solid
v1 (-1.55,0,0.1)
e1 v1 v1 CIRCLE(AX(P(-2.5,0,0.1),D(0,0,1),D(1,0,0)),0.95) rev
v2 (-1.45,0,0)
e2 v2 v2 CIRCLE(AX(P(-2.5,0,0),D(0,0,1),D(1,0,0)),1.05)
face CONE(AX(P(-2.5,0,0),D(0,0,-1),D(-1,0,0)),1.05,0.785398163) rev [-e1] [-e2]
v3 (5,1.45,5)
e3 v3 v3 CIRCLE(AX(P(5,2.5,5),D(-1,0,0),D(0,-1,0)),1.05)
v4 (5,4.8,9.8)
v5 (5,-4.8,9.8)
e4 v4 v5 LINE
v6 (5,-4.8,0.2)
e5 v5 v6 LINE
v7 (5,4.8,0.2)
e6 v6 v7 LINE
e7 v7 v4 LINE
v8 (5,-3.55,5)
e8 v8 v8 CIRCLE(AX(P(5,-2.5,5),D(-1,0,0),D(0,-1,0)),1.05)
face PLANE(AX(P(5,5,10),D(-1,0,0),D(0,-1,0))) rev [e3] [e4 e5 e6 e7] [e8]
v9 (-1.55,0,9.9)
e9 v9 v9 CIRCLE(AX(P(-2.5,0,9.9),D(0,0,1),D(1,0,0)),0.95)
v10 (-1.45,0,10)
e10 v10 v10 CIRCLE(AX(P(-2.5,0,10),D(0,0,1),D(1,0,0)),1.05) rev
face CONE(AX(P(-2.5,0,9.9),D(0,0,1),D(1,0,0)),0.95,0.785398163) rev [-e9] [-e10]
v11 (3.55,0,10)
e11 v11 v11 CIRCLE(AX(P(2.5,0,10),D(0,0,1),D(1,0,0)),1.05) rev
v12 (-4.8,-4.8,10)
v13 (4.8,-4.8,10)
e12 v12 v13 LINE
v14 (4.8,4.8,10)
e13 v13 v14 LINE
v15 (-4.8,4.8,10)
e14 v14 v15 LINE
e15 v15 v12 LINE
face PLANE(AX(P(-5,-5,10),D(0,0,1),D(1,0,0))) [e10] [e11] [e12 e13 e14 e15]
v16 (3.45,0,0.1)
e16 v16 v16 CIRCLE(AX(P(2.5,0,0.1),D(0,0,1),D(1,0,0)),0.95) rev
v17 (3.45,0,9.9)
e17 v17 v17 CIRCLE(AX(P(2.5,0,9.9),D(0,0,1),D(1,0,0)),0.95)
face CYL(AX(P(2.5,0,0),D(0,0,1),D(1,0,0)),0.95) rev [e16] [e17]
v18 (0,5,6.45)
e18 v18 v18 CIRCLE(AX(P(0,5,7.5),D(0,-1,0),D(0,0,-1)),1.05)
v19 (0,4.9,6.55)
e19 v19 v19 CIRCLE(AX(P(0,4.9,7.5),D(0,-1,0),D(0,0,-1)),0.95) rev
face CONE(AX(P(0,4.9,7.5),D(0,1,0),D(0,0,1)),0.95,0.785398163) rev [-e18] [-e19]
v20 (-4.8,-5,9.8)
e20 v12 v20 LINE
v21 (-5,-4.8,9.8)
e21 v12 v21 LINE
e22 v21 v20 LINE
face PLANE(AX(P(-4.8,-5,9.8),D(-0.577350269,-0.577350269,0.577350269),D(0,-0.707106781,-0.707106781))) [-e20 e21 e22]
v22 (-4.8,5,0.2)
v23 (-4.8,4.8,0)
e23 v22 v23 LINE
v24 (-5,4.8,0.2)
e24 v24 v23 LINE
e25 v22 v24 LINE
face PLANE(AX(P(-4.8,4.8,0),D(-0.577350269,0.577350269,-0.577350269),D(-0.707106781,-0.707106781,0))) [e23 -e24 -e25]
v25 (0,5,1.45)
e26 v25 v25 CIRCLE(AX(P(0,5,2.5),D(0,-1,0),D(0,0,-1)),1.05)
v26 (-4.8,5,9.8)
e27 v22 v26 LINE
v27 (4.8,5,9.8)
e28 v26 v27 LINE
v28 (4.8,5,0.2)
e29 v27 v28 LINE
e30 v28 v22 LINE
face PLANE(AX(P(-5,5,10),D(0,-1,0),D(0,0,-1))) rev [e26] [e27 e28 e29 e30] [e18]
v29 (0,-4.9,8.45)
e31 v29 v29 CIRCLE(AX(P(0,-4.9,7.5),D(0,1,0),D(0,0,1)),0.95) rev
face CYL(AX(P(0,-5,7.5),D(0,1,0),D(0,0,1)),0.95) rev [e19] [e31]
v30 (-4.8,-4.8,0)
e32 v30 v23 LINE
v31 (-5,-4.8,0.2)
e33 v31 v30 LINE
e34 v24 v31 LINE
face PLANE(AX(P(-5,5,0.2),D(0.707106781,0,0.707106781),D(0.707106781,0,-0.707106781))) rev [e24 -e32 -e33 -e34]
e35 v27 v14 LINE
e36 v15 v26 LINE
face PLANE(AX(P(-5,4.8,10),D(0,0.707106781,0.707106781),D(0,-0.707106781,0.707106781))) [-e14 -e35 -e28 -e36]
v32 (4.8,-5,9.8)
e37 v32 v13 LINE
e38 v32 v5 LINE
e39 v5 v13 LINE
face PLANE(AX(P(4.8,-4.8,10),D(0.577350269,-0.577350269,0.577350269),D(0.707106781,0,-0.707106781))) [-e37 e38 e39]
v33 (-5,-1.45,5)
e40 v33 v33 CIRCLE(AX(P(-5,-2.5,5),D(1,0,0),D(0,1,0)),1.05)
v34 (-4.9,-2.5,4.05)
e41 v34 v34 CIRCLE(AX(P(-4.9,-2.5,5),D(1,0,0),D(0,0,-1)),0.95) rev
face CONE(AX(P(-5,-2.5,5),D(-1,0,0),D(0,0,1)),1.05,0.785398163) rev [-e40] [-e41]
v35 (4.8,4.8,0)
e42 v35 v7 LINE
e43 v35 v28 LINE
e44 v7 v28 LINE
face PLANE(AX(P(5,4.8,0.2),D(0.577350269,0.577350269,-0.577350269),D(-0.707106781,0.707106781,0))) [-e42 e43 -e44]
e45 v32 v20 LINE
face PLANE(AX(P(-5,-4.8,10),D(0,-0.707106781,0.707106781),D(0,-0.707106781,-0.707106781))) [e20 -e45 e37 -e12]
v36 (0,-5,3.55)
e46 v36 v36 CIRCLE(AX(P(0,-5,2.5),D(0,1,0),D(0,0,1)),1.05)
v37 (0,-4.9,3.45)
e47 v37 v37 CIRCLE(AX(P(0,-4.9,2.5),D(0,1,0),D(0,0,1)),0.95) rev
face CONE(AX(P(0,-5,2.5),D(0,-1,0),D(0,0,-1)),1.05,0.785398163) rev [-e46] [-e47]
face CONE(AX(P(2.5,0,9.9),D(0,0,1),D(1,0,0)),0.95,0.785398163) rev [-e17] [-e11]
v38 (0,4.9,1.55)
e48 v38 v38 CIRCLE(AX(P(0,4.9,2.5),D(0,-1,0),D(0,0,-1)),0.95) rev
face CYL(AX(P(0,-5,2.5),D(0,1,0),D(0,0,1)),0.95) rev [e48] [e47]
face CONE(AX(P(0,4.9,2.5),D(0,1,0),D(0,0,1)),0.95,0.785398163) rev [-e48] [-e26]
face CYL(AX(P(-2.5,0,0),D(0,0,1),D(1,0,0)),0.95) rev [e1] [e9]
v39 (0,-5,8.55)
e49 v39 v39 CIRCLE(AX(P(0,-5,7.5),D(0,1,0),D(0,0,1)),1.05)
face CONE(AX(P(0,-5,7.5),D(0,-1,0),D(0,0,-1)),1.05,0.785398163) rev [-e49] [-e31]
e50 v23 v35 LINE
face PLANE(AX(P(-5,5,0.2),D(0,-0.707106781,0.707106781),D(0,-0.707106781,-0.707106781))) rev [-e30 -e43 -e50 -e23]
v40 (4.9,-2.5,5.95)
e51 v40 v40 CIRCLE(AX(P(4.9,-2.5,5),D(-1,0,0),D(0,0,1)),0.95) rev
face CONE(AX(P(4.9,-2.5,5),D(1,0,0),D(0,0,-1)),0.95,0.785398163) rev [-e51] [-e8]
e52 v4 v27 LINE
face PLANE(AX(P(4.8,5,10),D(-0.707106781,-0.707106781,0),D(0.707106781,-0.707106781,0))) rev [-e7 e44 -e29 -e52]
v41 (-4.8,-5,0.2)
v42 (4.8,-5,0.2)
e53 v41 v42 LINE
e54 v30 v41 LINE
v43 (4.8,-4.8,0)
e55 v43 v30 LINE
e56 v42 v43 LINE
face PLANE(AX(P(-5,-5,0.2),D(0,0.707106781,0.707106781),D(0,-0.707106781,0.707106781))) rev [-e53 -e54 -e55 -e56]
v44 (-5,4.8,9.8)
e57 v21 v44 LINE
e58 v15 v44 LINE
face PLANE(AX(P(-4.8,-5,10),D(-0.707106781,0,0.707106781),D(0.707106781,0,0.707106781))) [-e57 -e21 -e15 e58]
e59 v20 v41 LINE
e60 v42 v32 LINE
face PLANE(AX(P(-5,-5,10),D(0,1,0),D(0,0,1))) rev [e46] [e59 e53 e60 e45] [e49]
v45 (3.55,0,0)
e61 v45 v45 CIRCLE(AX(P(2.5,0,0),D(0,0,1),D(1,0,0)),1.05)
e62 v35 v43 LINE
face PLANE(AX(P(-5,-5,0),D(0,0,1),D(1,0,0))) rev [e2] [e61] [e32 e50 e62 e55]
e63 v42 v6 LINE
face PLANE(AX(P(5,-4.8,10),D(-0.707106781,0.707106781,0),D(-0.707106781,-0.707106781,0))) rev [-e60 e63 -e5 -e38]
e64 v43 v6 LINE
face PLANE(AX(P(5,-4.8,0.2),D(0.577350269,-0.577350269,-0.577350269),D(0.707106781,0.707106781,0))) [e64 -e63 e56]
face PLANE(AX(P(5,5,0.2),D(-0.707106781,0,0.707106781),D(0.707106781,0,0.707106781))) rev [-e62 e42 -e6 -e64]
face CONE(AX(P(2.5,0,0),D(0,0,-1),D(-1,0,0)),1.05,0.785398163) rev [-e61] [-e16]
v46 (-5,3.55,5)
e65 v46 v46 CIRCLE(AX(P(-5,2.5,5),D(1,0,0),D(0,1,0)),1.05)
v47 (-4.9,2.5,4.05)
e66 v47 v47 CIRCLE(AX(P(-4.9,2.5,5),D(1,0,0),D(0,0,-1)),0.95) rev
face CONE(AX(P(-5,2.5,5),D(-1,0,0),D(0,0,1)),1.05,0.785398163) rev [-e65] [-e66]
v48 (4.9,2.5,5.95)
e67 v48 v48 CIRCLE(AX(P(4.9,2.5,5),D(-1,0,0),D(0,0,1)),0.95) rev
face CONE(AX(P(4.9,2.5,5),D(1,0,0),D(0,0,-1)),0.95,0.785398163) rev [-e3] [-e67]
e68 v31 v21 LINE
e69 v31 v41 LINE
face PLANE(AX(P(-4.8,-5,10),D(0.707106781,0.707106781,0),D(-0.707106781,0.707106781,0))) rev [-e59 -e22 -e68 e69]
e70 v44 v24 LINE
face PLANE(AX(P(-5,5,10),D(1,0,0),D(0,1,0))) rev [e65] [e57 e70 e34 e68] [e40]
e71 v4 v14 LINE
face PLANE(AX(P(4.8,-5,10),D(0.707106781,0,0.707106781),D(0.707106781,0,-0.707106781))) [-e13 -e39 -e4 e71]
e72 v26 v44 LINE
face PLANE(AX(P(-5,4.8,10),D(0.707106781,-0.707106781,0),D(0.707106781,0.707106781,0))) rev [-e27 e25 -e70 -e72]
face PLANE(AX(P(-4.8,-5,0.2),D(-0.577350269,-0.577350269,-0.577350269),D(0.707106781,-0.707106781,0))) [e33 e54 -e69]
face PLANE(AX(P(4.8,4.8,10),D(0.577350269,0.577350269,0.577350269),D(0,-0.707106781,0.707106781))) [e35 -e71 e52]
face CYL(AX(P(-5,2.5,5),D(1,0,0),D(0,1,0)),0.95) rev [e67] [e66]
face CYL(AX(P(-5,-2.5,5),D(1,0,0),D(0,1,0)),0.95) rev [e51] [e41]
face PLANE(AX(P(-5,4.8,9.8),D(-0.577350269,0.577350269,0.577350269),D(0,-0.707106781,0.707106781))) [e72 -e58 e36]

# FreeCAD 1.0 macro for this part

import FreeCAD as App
import Part
import Sketcher
from FreeCAD import Vector


def edges_at(feature, points):
    """Names of the edges that pass closest to the given points."""
    edges = feature.Shape.Edges
    near = lambda p: min(range(len(edges)), key=lambda i: edges[i].distToShape(Part.Vertex(*p))[0])
    return sorted({f"Edge{near(p) + 1}" for p in points})


def add_polygon(sketch, points):
    """Adds a closed chain of lines whose ends are joined by coincident constraints."""
    first, n = sketch.GeometryCount, len(points)
    for a, b in zip(points, points[1:] + points[:1]):
        sketch.addGeometry(Part.LineSegment(App.Vector(*a, 0), App.Vector(*b, 0)), False)
    for i in range(n):
        sketch.addConstraint(Sketcher.Constraint("Coincident", first + i, 2, first + (i + 1) % n, 1))

doc = App.newDocument("Part")
body = doc.addObject("PartDesign::Body", "Body")

sketch1 = doc.addObject("Sketcher::SketchObject", "Sketch")
body.addObject(sketch1)
sketch1.AttachmentSupport = (doc.XY_Plane, [""])
sketch1.MapMode = "FlatFace"
add_polygon(sketch1, [(-5, 5), (-5, -5), (5, -5), (5, 5)])
sketch1.addConstraint(Sketcher.Constraint("Vertical", 0))
sketch1.addConstraint(Sketcher.Constraint("Horizontal", 1))
sketch1.addConstraint(Sketcher.Constraint("Vertical", 2))
sketch1.addConstraint(Sketcher.Constraint("Horizontal", 3))
sketch1.addConstraint(Sketcher.Constraint("Symmetric", 0, 2, 2, 2, -1, 1))
sketch1.addConstraint(Sketcher.Constraint("Equal", 3, 0))
sketch1.addConstraint(Sketcher.Constraint("DistanceX", 1, 1, 1, 2, 10.0))
pad1 = doc.addObject("PartDesign::Pad", "Pad")
body.addObject(pad1)
pad1.Profile = sketch1
pad1.Length = 10

sketch2 = doc.addObject("Sketcher::SketchObject", "Sketch001")
body.addObject(sketch2)
sketch2.AttachmentSupport = (doc.XY_Plane, [""])
sketch2.MapMode = "FlatFace"
sketch2.AttachmentOffset = App.Placement(Vector(0, 0, 10), App.Rotation())
sketch2.addGeometry(Part.Circle(Vector(-2.5, 0, 0), Vector(0, 0, 1), 0.9), False)
sketch2.addGeometry(Part.Circle(Vector(2.5, 0, 0), Vector(0, 0, 1), 0.9), False)
sketch2.addConstraint(Sketcher.Constraint("Equal", 0, 1))
sketch2.addConstraint(Sketcher.Constraint("Symmetric", 0, 3, 1, 3, -1, 1))
sketch2.addConstraint(Sketcher.Constraint("PointOnObject", 0, 3, -1))
sketch2.addConstraint(Sketcher.Constraint("Diameter", 0, 1.9))
sketch2.addConstraint(Sketcher.Constraint("DistanceX", 0, 3, 1, 3, 5.0))
pocket1 = doc.addObject("PartDesign::Pocket", "Pocket")
body.addObject(pocket1)
pocket1.Profile = sketch2
pocket1.Type = "ThroughAll"

sketch3 = doc.addObject("Sketcher::SketchObject", "Sketch002")
body.addObject(sketch3)
sketch3.AttachmentSupport = (doc.XZ_Plane, [""])
sketch3.MapMode = "FlatFace"
sketch3.AttachmentOffset = App.Placement(Vector(0, 0, -5), App.Rotation())
sketch3.addGeometry(Part.Circle(Vector(0, 7.5, 0), Vector(0, 0, 1), 0.9), False)
sketch3.addGeometry(Part.Circle(Vector(0, 2.5, 0), Vector(0, 0, 1), 0.9), False)
sketch3.addConstraint(Sketcher.Constraint("Equal", 0, 1))
sketch3.addConstraint(Sketcher.Constraint("PointOnObject", 0, 3, -2))
sketch3.addConstraint(Sketcher.Constraint("PointOnObject", 1, 3, -2))
sketch3.addConstraint(Sketcher.Constraint("Diameter", 0, 1.9))
sketch3.addConstraint(Sketcher.Constraint("DistanceY", 1, 3, 0, 3, 5.0))
sketch3.addConstraint(Sketcher.Constraint("DistanceY", -1, 1, 0, 3, 7.5))
pocket2 = doc.addObject("PartDesign::Pocket", "Pocket001")
body.addObject(pocket2)
pocket2.Profile = sketch3
pocket2.Type = "ThroughAll"
pocket2.Reversed = True

sketch4 = doc.addObject("Sketcher::SketchObject", "Sketch003")
body.addObject(sketch4)
sketch4.AttachmentSupport = (doc.YZ_Plane, [""])
sketch4.MapMode = "FlatFace"
sketch4.AttachmentOffset = App.Placement(Vector(0, 0, 5), App.Rotation())
sketch4.addGeometry(Part.Circle(Vector(2.5, 5, 0), Vector(0, 0, 1), 0.9), False)
sketch4.addGeometry(Part.Circle(Vector(-2.5, 5, 0), Vector(0, 0, 1), 0.9), False)
sketch4.addConstraint(Sketcher.Constraint("Equal", 0, 1))
sketch4.addConstraint(Sketcher.Constraint("Symmetric", 0, 3, 1, 3, -2))
sketch4.addConstraint(Sketcher.Constraint("Diameter", 0, 1.9))
sketch4.addConstraint(Sketcher.Constraint("DistanceY", -1, 1, 0, 3, 5.0))
sketch4.addConstraint(Sketcher.Constraint("DistanceX", 1, 3, 0, 3, 5.0))
pocket3 = doc.addObject("PartDesign::Pocket", "Pocket002")
body.addObject(pocket3)
pocket3.Profile = sketch4
pocket3.Type = "ThroughAll"
doc.recompute()

chamfer = doc.addObject("PartDesign::Chamfer", "Chamfer")
body.addObject(chamfer)
chamfer.Base = (pocket3, edges_at(pocket3, [
    (5, 0, 10),
    (0, 5, 10),
    (-5, 0, 10),
    (0, 5, 0),
    (5, 0, 0),
    (0, -5, 0),
    (-5, 0, 0),
    (0, -5, 10),
    (-5, 5, 5),
    (5, 5, 5),
    (5, -5, 5),
    (-5, -5, 5),
]))
chamfer.Size = 0.2
doc.recompute()

chamfer2 = doc.addObject("PartDesign::Chamfer", "Chamfer001")
body.addObject(chamfer2)
chamfer2.Base = (chamfer, edges_at(chamfer, [
    (-3.45, 0, 0),
    (-3.45, 0, 10),
    (3.45, 0, 0),
    (3.45, 0, 10),
    (0, -5, 8.45),
    (0, 5, 8.45),
    (0, -5, 1.55),
    (0, 5, 1.55),
    (-5, 1.55, 5),
    (5, 1.55, 5),
    (-5, -1.55, 5),
    (5, -1.55, 5),
]))
chamfer2.Size = 0.1

doc.recompute()
